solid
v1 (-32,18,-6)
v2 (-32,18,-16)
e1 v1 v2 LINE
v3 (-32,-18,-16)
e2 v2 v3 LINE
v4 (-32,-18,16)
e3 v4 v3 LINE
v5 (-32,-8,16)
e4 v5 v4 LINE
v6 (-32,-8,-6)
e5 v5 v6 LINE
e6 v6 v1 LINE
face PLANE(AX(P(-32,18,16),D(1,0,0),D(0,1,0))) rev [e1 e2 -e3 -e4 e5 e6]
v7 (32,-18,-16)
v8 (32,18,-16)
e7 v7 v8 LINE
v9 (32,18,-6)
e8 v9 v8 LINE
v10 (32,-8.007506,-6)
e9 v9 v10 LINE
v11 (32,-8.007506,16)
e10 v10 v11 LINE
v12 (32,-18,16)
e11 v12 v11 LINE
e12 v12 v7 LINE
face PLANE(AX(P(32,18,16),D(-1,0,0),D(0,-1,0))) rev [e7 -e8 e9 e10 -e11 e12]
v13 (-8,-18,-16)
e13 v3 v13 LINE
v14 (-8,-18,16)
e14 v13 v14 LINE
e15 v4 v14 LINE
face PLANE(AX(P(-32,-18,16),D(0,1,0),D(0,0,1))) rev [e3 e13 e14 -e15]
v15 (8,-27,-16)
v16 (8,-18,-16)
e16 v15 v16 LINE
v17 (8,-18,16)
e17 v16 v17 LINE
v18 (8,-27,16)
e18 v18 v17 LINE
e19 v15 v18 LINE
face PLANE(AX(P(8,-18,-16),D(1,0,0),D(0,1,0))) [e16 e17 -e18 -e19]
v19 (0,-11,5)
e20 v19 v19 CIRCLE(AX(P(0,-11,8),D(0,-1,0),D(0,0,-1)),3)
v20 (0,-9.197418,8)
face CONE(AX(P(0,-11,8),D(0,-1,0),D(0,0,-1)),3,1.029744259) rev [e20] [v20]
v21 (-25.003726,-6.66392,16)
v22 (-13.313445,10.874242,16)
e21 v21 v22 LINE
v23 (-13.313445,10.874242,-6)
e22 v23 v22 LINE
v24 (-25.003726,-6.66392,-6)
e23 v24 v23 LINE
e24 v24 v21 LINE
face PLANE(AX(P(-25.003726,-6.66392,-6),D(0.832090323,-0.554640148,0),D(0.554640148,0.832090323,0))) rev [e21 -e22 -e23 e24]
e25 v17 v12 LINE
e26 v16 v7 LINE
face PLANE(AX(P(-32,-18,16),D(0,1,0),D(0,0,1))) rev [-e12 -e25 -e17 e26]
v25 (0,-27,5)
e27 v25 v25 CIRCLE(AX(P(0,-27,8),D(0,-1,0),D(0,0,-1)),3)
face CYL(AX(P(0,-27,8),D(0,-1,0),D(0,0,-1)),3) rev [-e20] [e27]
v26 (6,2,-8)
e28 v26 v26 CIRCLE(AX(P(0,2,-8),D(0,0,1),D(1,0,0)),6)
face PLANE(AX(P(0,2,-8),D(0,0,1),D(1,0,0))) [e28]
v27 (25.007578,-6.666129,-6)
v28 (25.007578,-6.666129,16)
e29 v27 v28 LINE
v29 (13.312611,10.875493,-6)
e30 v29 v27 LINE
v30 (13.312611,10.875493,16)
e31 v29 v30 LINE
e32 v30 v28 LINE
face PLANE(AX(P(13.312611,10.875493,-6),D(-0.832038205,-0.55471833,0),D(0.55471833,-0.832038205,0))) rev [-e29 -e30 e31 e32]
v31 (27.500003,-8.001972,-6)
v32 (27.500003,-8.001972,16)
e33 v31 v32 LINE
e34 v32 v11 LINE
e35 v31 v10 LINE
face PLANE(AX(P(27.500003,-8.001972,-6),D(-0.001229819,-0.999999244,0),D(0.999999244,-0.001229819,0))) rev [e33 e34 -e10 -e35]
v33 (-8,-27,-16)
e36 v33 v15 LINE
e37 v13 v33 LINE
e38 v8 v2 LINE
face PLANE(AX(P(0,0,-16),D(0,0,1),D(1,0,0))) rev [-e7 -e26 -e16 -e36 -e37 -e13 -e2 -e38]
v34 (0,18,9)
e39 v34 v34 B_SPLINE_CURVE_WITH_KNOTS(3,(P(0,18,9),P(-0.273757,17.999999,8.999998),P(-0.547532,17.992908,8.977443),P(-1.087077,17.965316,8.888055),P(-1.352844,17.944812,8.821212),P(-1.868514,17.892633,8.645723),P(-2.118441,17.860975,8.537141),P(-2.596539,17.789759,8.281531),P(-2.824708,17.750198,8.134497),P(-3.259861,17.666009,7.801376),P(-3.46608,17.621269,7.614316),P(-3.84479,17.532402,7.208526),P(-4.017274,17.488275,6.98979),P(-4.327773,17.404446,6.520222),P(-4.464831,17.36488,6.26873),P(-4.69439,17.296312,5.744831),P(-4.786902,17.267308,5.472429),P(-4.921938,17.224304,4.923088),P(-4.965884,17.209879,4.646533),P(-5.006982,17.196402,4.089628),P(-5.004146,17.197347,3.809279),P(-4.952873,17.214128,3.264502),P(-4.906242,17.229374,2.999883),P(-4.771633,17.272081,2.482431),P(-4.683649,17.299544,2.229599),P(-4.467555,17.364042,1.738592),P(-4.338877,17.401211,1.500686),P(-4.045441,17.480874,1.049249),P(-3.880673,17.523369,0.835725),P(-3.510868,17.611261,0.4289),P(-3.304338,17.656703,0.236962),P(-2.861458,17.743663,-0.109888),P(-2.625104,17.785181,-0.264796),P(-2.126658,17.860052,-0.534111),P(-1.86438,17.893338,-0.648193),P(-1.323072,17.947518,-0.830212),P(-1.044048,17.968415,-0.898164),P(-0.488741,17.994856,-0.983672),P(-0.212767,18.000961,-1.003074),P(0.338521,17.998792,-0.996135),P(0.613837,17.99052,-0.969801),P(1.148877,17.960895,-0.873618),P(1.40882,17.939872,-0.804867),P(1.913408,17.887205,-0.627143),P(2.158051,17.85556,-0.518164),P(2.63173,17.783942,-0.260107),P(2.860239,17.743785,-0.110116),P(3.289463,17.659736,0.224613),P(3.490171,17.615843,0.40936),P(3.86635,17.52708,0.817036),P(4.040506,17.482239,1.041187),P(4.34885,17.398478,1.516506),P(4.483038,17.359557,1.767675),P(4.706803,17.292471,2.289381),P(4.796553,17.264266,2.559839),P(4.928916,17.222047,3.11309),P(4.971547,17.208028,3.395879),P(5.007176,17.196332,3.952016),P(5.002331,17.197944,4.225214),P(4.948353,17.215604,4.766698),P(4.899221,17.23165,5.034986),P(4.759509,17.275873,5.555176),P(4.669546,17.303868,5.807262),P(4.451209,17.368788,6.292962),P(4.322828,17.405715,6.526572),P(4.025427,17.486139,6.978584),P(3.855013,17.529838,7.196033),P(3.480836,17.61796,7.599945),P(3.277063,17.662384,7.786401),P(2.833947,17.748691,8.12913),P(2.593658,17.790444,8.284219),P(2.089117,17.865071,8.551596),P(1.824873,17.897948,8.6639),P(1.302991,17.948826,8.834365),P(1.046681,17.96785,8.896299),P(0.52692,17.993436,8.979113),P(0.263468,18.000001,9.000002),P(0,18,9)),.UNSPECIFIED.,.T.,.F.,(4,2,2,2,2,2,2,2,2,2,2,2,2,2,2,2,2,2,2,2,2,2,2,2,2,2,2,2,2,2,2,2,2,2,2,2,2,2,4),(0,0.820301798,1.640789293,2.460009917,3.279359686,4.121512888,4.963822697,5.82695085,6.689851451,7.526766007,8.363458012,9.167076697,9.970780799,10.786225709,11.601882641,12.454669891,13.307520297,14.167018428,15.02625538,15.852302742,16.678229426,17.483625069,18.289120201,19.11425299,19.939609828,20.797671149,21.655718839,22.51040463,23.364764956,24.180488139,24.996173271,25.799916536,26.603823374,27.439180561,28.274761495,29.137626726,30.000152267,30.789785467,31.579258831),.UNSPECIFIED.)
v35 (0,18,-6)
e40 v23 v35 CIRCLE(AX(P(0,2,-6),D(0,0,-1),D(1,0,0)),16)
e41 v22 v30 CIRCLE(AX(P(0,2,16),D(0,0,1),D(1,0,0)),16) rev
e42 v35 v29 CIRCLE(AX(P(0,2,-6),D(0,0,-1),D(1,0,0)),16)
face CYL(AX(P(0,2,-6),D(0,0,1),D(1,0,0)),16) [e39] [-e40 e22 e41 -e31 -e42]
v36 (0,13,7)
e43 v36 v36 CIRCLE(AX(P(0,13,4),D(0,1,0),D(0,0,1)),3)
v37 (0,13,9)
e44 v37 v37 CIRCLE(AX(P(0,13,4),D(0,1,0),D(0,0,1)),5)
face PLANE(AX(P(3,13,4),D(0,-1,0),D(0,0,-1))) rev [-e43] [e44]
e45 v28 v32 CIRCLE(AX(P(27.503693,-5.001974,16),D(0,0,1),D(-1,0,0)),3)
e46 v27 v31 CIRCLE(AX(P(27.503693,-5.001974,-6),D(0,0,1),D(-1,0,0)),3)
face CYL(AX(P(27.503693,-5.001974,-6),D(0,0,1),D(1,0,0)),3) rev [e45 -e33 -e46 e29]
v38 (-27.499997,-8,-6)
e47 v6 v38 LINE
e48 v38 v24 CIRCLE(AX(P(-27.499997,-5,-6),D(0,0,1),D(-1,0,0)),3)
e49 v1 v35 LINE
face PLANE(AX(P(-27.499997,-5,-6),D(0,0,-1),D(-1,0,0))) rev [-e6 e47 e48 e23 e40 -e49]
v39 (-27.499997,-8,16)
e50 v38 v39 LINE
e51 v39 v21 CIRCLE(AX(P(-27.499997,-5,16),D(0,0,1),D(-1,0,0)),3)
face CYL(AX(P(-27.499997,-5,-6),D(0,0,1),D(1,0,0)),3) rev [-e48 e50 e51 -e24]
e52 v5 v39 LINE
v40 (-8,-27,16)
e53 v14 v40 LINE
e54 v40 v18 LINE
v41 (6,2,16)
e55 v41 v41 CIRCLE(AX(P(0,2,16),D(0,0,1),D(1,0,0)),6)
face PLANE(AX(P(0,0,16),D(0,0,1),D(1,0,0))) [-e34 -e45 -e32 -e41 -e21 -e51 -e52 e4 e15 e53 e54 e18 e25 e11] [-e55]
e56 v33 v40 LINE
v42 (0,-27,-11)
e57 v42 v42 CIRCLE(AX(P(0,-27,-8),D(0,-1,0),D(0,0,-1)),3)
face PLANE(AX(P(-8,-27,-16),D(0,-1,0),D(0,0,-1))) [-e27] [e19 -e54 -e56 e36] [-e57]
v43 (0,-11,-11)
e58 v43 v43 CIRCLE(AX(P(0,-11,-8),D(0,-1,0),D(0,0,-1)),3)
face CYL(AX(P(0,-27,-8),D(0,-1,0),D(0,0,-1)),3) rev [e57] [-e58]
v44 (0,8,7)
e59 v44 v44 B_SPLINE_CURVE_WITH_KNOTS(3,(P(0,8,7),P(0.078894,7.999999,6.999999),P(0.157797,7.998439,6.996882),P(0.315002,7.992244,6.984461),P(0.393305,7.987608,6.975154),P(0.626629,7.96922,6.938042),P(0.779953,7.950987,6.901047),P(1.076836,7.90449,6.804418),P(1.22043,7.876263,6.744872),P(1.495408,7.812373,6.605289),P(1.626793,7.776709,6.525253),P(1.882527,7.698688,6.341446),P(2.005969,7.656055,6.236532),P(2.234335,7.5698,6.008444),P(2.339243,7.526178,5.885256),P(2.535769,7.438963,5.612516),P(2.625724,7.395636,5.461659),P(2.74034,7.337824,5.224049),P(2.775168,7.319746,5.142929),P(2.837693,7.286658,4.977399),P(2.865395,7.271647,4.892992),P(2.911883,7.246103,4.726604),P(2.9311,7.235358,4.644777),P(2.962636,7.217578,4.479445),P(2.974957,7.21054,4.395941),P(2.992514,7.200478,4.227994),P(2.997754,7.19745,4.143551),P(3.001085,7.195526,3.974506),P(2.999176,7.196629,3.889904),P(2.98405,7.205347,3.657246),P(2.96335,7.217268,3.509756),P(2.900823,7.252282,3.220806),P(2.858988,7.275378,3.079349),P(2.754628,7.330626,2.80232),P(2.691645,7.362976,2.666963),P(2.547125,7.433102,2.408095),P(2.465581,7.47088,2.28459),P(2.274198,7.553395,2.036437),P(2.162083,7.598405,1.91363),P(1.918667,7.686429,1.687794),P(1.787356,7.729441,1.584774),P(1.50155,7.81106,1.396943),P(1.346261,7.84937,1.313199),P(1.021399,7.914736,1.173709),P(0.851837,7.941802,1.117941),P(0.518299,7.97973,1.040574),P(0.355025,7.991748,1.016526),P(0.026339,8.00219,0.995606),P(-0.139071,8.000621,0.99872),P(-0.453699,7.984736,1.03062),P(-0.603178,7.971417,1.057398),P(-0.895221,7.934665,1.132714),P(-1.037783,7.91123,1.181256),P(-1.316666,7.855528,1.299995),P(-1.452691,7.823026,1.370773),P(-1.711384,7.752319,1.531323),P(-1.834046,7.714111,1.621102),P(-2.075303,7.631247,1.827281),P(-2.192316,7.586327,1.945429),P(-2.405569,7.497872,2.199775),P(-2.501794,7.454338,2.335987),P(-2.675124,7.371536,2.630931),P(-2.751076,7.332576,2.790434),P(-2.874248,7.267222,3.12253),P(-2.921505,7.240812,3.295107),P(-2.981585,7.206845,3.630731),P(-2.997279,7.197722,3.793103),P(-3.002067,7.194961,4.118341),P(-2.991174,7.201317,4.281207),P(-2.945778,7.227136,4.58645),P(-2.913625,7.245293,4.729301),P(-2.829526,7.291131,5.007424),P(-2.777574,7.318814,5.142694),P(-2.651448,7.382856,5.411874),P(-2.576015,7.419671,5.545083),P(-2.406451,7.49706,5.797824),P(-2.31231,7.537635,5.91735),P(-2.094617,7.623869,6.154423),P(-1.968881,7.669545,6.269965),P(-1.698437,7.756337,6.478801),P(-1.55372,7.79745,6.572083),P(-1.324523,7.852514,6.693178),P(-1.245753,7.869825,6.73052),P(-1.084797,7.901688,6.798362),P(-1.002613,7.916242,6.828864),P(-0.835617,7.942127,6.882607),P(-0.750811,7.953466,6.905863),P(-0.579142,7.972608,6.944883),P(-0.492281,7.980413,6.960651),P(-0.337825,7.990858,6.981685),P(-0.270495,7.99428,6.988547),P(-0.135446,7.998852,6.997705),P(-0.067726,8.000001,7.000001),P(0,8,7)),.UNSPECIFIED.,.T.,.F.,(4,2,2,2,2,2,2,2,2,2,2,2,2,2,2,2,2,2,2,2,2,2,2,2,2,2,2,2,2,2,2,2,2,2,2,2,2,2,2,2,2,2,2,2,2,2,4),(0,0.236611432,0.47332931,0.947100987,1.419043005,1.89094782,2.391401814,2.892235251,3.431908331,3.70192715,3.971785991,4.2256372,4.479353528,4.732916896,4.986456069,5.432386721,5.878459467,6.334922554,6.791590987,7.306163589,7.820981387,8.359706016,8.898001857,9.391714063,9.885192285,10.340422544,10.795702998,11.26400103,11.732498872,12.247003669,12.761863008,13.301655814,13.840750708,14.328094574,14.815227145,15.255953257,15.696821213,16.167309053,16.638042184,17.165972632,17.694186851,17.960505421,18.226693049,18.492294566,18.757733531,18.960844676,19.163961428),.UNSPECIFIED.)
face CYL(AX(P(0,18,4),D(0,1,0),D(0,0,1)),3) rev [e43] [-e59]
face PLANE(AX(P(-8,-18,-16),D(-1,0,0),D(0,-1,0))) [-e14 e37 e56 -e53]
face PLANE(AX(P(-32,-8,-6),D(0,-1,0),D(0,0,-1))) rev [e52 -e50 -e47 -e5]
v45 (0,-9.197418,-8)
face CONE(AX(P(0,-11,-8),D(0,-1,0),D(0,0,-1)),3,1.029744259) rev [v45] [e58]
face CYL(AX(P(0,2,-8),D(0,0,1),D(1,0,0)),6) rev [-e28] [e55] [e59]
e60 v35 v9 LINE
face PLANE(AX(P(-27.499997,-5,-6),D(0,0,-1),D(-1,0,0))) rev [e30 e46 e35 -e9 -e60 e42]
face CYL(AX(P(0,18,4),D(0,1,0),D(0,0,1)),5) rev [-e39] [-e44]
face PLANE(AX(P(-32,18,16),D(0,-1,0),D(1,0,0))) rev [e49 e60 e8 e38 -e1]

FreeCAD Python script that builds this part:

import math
import FreeCAD as App
import Part
import Sketcher


def add_polygon(sketch, points):
    """Adds a closed chain of lines whose ends are joined by coincident constraints."""
    first, n = sketch.GeometryCount, len(points)
    for a, b in zip(points, points[1:] + points[:1]):
        sketch.addGeometry(Part.LineSegment(App.Vector(*a, 0), App.Vector(*b, 0)), False)
    for i in range(n):
        sketch.addConstraint(Sketcher.Constraint("Coincident", first + i, 2, first + (i + 1) % n, 1))

doc = App.newDocument("Part")
body = doc.addObject("PartDesign::Body", "Body")

sketch1 = doc.addObject("Sketcher::SketchObject", "Sketch")
body.addObject(sketch1)
sketch1.AttachmentSupport = (doc.XY_Plane, [""])
sketch1.MapMode = "FlatFace"
add_polygon(sketch1, [(-32, 18), (-32, -18), (32, -18), (32, 18)])
sketch1.addConstraint([
    Sketcher.Constraint("Vertical", 0),
    Sketcher.Constraint("Horizontal", 1),
    Sketcher.Constraint("Vertical", 2),
    Sketcher.Constraint("Horizontal", 3),
    Sketcher.Constraint("Symmetric", 0, 2, 2, 2, -1, 1),
    Sketcher.Constraint("DistanceX", 1, 1, 1, 2, 64.0),
    Sketcher.Constraint("DistanceY", 0, 2, 0, 1, 36.0),
])
pad1 = doc.addObject("PartDesign::Pad", "Pad")
body.addObject(pad1)
pad1.Profile = sketch1
pad1.Length = 32
pad1.Midplane = True

sketch2 = doc.addObject("Sketcher::SketchObject", "Sketch001")
body.addObject(sketch2)
sketch2.AttachmentSupport = (doc.XY_Plane, [""])
sketch2.MapMode = "FlatFace"
sketch2.AttachmentOffset = App.Placement(App.Vector(0, 0, 16), App.Rotation())
sketch2.addGeometry([
    Part.ArcOfCircle(Part.Circle(App.Vector(-27.5, -5, 0), App.Vector(0, 0, 1), 3), math.radians(-90), math.radians(-34)),
    Part.LineSegment(App.Vector(-25, -6.7, 0), App.Vector(-13.3, 10.9, 0)),
    Part.ArcOfCircle(Part.Circle(App.Vector(0, 2, 0), App.Vector(0, 0, 1), 16), math.radians(34), math.radians(146)),
    Part.LineSegment(App.Vector(13.3, 10.9, 0), App.Vector(25, -6.7, 0)),
    Part.ArcOfCircle(Part.Circle(App.Vector(27.5, -5, 0), App.Vector(0, 0, 1), 3), math.radians(-146), math.radians(-90)),
    Part.LineSegment(App.Vector(27.5, -8, 0), App.Vector(32, -8, 0)),
    Part.LineSegment(App.Vector(32, -8, 0), App.Vector(36.7, -8, 0)),
    Part.LineSegment(App.Vector(36.7, -8, 0), App.Vector(36.7, 30.2, 0)),
    Part.LineSegment(App.Vector(36.7, 30.2, 0), App.Vector(-48.4, 30.2, 0)),
    Part.LineSegment(App.Vector(-48.4, 30.2, 0), App.Vector(-48.4, -8, 0)),
    Part.LineSegment(App.Vector(-48.4, -8, 0), App.Vector(-27.5, -8, 0)),
], False)
sketch2.addConstraint([
    Sketcher.Constraint("Tangent", 0, 2, 1, 1),
    Sketcher.Constraint("Tangent", 1, 2, 2, 2),
    Sketcher.Constraint("Tangent", 2, 1, 3, 1),
    Sketcher.Constraint("Tangent", 3, 2, 4, 1),
    Sketcher.Constraint("Tangent", 4, 2, 5, 1),
    Sketcher.Constraint("Coincident", 5, 2, 6, 1),
    Sketcher.Constraint("Coincident", 6, 2, 7, 1),
    Sketcher.Constraint("Coincident", 7, 2, 8, 1),
    Sketcher.Constraint("Coincident", 8, 2, 9, 1),
    Sketcher.Constraint("Coincident", 9, 2, 10, 1),
    Sketcher.Constraint("Tangent", 10, 2, 0, 1),
    Sketcher.Constraint("Horizontal", 6),
    Sketcher.Constraint("Vertical", 7),
    Sketcher.Constraint("Horizontal", 8),
    Sketcher.Constraint("Vertical", 9),
    Sketcher.Constraint("Horizontal", 10),
    Sketcher.Constraint("Equal", 0, 4),
    Sketcher.Constraint("PointOnObject", 2, 3, -2),
    Sketcher.Constraint("Radius", 0, 3.0),
    Sketcher.Constraint("Radius", 2, 16.0),
    Sketcher.Constraint("DistanceY", 0, 3, -1, 1, 5.0),
    Sketcher.Constraint("DistanceY", -1, 1, 2, 3, 2.0),
    Sketcher.Constraint("DistanceX", -1, 1, 5, 2, 32.0),
    Sketcher.Constraint("Distance", 5, 4.5),
    Sketcher.Constraint("DistanceY", 5, 2, 2, 1, 18.882999),
    Sketcher.Constraint("DistanceX", 6, 1, 6, 2, 4.662232),
    Sketcher.Constraint("DistanceX", 8, 2, 8, 1, 85.028761),
    Sketcher.Constraint("DistanceY", 7, 1, 7, 2, 38.162091),
    Sketcher.Constraint("DistanceX", 10, 1, 10, 2, 20.866532),
    Sketcher.Constraint("DistanceY", 9, 2, 9, 1, 38.154586),
])
pocket1 = doc.addObject("PartDesign::Pocket", "Pocket")
body.addObject(pocket1)
pocket1.Profile = sketch2
pocket1.Length = 22

sketch3 = doc.addObject("Sketcher::SketchObject", "Sketch002")
body.addObject(sketch3)
sketch3.AttachmentSupport = (doc.XY_Plane, [""])
sketch3.MapMode = "FlatFace"
sketch3.AttachmentOffset = App.Placement(App.Vector(0, 0, 16), App.Rotation())
sketch3.addGeometry(Part.Circle(App.Vector(0, 2, 0), App.Vector(0, 0, 1), 6), False)
sketch3.addConstraint([
    Sketcher.Constraint("PointOnObject", 0, 3, -2),
    Sketcher.Constraint("Diameter", 0, 12.0),
    Sketcher.Constraint("DistanceY", -1, 1, 0, 3, 2.0),
])
pocket2 = doc.addObject("PartDesign::Pocket", "Pocket001")
body.addObject(pocket2)
pocket2.Profile = sketch3
pocket2.Length = 24

sketch4 = doc.addObject("Sketcher::SketchObject", "Sketch003")
body.addObject(sketch4)
sketch4.AttachmentSupport = (doc.XY_Plane, [""])
sketch4.MapMode = "FlatFace"
sketch4.AttachmentOffset = App.Placement(App.Vector(0, 0, 16), App.Rotation())
add_polygon(sketch4, [(-8, -18), (-8, -27), (8, -27), (8, -18)])
sketch4.addConstraint([
    Sketcher.Constraint("Vertical", 0),
    Sketcher.Constraint("Horizontal", 1),
    Sketcher.Constraint("Vertical", 2),
    Sketcher.Constraint("Horizontal", 3),
    Sketcher.Constraint("DistanceX", 1, 1, 1, 2, 16.0),
    Sketcher.Constraint("DistanceY", 0, 2, 0, 1, 9.0),
    Sketcher.Constraint("DistanceX", 0, 2, -1, 1, 8.0),
    Sketcher.Constraint("DistanceY", 0, 2, -1, 1, 27.0),
])
pad2 = doc.addObject("PartDesign::Pad", "Pad001")
body.addObject(pad2)
pad2.Profile = sketch4
pad2.Length = 32
pad2.Reversed = True

sketch5 = doc.addObject("Sketcher::SketchObject", "Sketch004")
body.addObject(sketch5)
sketch5.AttachmentSupport = (doc.XZ_Plane, [""])
sketch5.MapMode = "FlatFace"
sketch5.AttachmentOffset = App.Placement(App.Vector(0, 0, 27), App.Rotation())
sketch5.addGeometry([
    Part.Circle(App.Vector(0, 8, 0), App.Vector(0, 0, 1), 3),
    Part.Circle(App.Vector(0, -8, 0), App.Vector(0, 0, 1), 3),
], False)
sketch5.addConstraint([
    Sketcher.Constraint("Equal", 0, 1),
    Sketcher.Constraint("Symmetric", 0, 3, 1, 3, -1, 1),
    Sketcher.Constraint("PointOnObject", 0, 3, -2),
    Sketcher.Constraint("Diameter", 0, 6.0),
    Sketcher.Constraint("DistanceY", -1, 1, 0, 3, 8.0),
])
doc.recompute()
hole = doc.addObject("PartDesign::Hole", "Hole")
body.addObject(hole)
hole.Profile = sketch5
hole.ThreadType = "None"
hole.Diameter = 6
hole.DepthType = "Dimension"
hole.Depth = 16
hole.DrillPoint = "Angled"
hole.DrillPointAngle = 118

sketch6 = doc.addObject("Sketcher::SketchObject", "Sketch005")
body.addObject(sketch6)
sketch6.AttachmentSupport = (doc.XZ_Plane, [""])
sketch6.MapMode = "FlatFace"
sketch6.AttachmentOffset = App.Placement(App.Vector(0, 0, -18), App.Rotation())
sketch6.addGeometry(Part.Circle(App.Vector(0, 4, 0), App.Vector(0, 0, 1), 3), False)
sketch6.addConstraint([
    Sketcher.Constraint("PointOnObject", 0, 3, -2),
    Sketcher.Constraint("Diameter", 0, 6.0),
    Sketcher.Constraint("DistanceY", -1, 1, 0, 3, 4.0),
])
doc.recompute()
hole2 = doc.addObject("PartDesign::Hole", "Hole001")
body.addObject(hole2)
hole2.Profile = sketch6
hole2.ThreadType = "None"
hole2.Diameter = 6
hole2.DepthType = "Dimension"
hole2.Depth = 13
hole2.DrillPoint = "Angled"
hole2.DrillPointAngle = 118
hole2.HoleCutType = "Counterbore"
hole2.HoleCutDiameter = 10
hole2.HoleCutDepth = 5
hole2.Reversed = True

doc.recompute()
